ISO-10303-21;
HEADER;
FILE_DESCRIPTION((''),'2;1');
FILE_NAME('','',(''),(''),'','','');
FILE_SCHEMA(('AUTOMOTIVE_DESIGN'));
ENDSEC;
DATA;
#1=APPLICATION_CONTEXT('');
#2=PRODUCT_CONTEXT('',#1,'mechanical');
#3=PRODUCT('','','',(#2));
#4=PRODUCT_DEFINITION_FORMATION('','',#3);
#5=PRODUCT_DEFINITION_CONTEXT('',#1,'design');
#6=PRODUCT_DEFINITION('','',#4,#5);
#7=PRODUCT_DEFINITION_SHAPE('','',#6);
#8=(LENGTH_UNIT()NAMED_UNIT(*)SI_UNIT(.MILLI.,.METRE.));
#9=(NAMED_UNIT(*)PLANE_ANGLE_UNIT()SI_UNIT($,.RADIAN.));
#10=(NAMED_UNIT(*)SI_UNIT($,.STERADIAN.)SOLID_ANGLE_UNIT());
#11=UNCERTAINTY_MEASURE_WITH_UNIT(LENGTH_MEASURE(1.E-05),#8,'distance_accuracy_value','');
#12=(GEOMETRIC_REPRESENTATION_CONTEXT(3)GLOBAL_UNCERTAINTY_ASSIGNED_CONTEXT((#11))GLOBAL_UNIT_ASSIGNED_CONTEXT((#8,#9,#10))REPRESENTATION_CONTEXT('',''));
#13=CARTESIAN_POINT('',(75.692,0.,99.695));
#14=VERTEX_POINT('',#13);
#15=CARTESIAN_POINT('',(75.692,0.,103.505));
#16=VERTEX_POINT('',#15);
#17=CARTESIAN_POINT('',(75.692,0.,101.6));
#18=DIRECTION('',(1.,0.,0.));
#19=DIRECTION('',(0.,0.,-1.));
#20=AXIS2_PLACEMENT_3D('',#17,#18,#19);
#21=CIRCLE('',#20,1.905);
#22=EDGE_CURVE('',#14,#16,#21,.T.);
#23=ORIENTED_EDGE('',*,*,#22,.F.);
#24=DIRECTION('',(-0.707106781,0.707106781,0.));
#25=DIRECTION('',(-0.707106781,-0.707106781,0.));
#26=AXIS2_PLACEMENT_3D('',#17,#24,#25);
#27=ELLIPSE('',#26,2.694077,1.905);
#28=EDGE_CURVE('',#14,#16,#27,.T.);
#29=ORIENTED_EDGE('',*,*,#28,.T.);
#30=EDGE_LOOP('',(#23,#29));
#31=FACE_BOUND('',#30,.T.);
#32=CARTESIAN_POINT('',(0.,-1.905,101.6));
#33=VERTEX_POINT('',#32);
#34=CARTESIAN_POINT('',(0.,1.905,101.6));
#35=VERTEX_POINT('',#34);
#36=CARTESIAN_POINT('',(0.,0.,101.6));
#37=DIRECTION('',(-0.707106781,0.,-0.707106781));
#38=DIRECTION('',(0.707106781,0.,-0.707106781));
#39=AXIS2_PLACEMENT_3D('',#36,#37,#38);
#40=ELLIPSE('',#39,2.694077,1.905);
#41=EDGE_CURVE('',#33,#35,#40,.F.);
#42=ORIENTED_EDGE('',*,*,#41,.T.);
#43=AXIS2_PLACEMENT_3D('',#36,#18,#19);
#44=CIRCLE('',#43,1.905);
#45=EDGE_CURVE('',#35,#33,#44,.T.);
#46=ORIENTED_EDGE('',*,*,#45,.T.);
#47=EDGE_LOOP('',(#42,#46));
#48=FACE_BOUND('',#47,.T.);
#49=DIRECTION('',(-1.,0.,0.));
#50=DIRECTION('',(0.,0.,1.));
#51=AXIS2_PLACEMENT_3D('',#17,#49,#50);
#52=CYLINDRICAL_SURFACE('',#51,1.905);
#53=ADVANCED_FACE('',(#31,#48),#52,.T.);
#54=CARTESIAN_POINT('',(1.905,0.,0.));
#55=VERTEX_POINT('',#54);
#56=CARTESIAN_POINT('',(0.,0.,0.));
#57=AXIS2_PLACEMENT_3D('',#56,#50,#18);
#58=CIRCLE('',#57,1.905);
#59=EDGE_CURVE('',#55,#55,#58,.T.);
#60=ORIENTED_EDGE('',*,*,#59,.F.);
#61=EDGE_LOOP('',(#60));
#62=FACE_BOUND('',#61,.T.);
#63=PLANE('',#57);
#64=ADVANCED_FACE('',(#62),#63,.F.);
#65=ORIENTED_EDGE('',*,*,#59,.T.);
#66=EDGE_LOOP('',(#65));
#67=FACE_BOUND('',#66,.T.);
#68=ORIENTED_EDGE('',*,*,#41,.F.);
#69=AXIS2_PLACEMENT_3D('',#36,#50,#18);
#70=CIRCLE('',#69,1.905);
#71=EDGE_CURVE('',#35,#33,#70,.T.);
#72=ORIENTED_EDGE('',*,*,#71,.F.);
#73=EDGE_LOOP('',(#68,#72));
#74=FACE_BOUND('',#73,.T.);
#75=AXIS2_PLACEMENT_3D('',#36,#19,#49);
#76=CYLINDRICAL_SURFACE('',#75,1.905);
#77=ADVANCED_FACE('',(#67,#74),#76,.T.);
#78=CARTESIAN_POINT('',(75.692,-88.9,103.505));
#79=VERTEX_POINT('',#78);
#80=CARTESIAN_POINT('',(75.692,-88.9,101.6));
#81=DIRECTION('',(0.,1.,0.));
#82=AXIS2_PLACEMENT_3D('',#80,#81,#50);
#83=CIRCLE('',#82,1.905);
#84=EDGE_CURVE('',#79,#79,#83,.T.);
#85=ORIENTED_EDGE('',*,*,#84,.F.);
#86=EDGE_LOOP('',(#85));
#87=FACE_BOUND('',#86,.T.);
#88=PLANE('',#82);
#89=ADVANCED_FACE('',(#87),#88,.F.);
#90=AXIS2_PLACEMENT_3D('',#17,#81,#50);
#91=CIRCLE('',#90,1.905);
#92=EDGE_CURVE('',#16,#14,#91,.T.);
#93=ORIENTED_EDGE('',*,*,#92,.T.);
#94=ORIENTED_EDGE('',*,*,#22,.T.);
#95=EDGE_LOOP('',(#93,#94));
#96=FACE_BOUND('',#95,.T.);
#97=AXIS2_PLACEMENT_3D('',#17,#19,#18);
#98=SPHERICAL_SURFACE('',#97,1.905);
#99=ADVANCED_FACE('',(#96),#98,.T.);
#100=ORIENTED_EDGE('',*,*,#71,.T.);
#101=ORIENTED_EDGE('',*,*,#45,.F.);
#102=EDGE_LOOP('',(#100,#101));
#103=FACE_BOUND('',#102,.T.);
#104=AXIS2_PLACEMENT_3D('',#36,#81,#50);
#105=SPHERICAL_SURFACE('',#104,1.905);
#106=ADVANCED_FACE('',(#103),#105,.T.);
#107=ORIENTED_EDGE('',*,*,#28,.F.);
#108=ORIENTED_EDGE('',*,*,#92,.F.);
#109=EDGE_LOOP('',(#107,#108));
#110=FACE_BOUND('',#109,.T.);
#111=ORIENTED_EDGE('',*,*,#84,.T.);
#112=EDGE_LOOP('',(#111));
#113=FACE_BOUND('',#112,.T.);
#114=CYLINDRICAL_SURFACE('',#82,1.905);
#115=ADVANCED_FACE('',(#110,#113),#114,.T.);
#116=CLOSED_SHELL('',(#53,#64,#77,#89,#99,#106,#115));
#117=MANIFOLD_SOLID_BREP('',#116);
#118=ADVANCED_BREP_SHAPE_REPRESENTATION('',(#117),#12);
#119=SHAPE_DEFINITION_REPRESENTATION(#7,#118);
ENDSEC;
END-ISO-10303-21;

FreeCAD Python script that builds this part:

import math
import FreeCAD as App
import Part
import Sketcher
from FreeCAD import Vector
Q = App.Units.Quantity

doc = App.newDocument("Part")
body = doc.addObject("PartDesign::Body", "Body")

# Sketch on XY plane
sketch1 = body.newObject("Sketcher::SketchObject", "Sketch")
sketch1.AttachmentSupport = (doc.getObject("XY_Plane"), [""])
sketch1.MapMode = "FlatFace"
sketch1.addGeometry(Part.Circle(Vector(0, 0, 0), Vector(0, 0, 1), 1.9), False)
sketch1.addConstraint([
    Sketcher.Constraint("Coincident", 0, 3, -1, 1),
    Sketcher.Constraint("Diameter", 0, Q("0.15 in")),
])
pad1 = body.newObject("PartDesign::Pad", "Pad")
pad1.Profile = sketch1
pad1.Length = Q("4 in")

# Sketch on YZ plane
sketch2 = body.newObject("Sketcher::SketchObject", "Sketch001")
sketch2.AttachmentSupport = (doc.getObject("YZ_Plane"), [""])
sketch2.MapMode = "FlatFace"
sketch2.addGeometry(Part.Circle(Vector(0, 101.6, 0), Vector(0, 0, 1), 1.9), False)
sketch2.addConstraint([
    Sketcher.Constraint("PointOnObject", 0, 3, -2),
    Sketcher.Constraint("Diameter", 0, Q("0.15 in")),
    Sketcher.Constraint("DistanceY", -1, 1, 0, 3, Q("4 in")),
])
pad2 = body.newObject("PartDesign::Pad", "Pad001")
pad2.Profile = sketch2
pad2.Length = Q("2.98 in")

# Sketch on YZ plane
sketch3 = body.newObject("Sketcher::SketchObject", "Sketch002")
sketch3.AttachmentSupport = (doc.getObject("YZ_Plane"), [""])
sketch3.MapMode = "FlatFace"
sketch3.addGeometry([
    Part.LineSegment(Vector(1.9, 101.6, 0), Vector(-1.9, 101.6, 0)),
    Part.ArcOfCircle(Part.Circle(Vector(0, 101.6, 0), Vector(0, 0, 1), 1.9), math.radians(0), math.radians(180)),
], False)
sketch3.addGeometry(Part.LineSegment(Vector(1.9, 101.6, 0), Vector(-1.9, 101.6, 0)), True)  # axis
sketch3.addConstraint([
    Sketcher.Constraint("Coincident", 0, 1, 1, 1),
    Sketcher.Constraint("Coincident", 1, 2, 0, 2),
    Sketcher.Constraint("Horizontal", 0),
    Sketcher.Constraint("Horizontal", 2),
    Sketcher.Constraint("Coincident", 2, 1, 0, 1),
    Sketcher.Constraint("PointOnObject", 1, 3, -2),
    Sketcher.Constraint("Horizontal", 1, 3, 0, 1),
    Sketcher.Constraint("Equal", 0, 2),
    Sketcher.Constraint("DistanceY", -1, 1, 1, 3, Q("4 in")),
    Sketcher.Constraint("Radius", 1, Q("0.075 in")),
])
revolution = body.newObject("PartDesign::Revolution", "Revolution")
revolution.Profile = sketch3
revolution.ReferenceAxis = (sketch3, ["Axis0"])
revolution.Angle = 360

# Sketch on XZ plane
sketch4 = body.newObject("Sketcher::SketchObject", "Sketch003")
sketch4.AttachmentSupport = (doc.getObject("XZ_Plane"), [""])
sketch4.MapMode = "FlatFace"
sketch4.addGeometry(Part.Circle(Vector(75.7, 101.6, 0), Vector(0, 0, 1), 1.9), False)
sketch4.addConstraint([
    Sketcher.Constraint("Diameter", 0, Q("0.15 in")),
    Sketcher.Constraint("DistanceY", -1, 1, 0, 3, Q("4 in")),
    Sketcher.Constraint("DistanceX", -1, 1, 0, 3, Q("2.98 in")),
])
pad3 = body.newObject("PartDesign::Pad", "Pad002")
pad3.Profile = sketch4
pad3.Length = Q("3.5 in")

# Sketch on XZ plane
sketch5 = body.newObject("Sketcher::SketchObject", "Sketch004")
sketch5.AttachmentSupport = (doc.getObject("XZ_Plane"), [""])
sketch5.MapMode = "FlatFace"
sketch5.addGeometry([
    Part.LineSegment(Vector(75.7, 99.7, 0), Vector(75.7, 103.5, 0)),
    Part.ArcOfCircle(Part.Circle(Vector(75.7, 101.6, 0), Vector(0, 0, 1), 1.9), math.radians(-90), math.radians(90)),
], False)
sketch5.addGeometry(Part.LineSegment(Vector(75.7, 99.7, 0), Vector(75.7, 103.5, 0)), True)  # axis
sketch5.addConstraint([
    Sketcher.Constraint("Coincident", 0, 1, 1, 1),
    Sketcher.Constraint("Coincident", 1, 2, 0, 2),
    Sketcher.Constraint("Vertical", 0),
    Sketcher.Constraint("Vertical", 2),
    Sketcher.Constraint("Coincident", 2, 1, 0, 1),
    Sketcher.Constraint("Vertical", 1, 3, 0, 1),
    Sketcher.Constraint("Equal", 0, 2),
    Sketcher.Constraint("DistanceY", -1, 1, 1, 3, Q("4 in")),
    Sketcher.Constraint("Radius", 1, Q("0.075 in")),
    Sketcher.Constraint("DistanceX", -1, 1, 1, 3, Q("2.98 in")),
])
revolution2 = body.newObject("PartDesign::Revolution", "Revolution001")
revolution2.Profile = sketch5
revolution2.ReferenceAxis = (sketch5, ["Axis0"])
revolution2.Angle = 360

doc.recompute()
